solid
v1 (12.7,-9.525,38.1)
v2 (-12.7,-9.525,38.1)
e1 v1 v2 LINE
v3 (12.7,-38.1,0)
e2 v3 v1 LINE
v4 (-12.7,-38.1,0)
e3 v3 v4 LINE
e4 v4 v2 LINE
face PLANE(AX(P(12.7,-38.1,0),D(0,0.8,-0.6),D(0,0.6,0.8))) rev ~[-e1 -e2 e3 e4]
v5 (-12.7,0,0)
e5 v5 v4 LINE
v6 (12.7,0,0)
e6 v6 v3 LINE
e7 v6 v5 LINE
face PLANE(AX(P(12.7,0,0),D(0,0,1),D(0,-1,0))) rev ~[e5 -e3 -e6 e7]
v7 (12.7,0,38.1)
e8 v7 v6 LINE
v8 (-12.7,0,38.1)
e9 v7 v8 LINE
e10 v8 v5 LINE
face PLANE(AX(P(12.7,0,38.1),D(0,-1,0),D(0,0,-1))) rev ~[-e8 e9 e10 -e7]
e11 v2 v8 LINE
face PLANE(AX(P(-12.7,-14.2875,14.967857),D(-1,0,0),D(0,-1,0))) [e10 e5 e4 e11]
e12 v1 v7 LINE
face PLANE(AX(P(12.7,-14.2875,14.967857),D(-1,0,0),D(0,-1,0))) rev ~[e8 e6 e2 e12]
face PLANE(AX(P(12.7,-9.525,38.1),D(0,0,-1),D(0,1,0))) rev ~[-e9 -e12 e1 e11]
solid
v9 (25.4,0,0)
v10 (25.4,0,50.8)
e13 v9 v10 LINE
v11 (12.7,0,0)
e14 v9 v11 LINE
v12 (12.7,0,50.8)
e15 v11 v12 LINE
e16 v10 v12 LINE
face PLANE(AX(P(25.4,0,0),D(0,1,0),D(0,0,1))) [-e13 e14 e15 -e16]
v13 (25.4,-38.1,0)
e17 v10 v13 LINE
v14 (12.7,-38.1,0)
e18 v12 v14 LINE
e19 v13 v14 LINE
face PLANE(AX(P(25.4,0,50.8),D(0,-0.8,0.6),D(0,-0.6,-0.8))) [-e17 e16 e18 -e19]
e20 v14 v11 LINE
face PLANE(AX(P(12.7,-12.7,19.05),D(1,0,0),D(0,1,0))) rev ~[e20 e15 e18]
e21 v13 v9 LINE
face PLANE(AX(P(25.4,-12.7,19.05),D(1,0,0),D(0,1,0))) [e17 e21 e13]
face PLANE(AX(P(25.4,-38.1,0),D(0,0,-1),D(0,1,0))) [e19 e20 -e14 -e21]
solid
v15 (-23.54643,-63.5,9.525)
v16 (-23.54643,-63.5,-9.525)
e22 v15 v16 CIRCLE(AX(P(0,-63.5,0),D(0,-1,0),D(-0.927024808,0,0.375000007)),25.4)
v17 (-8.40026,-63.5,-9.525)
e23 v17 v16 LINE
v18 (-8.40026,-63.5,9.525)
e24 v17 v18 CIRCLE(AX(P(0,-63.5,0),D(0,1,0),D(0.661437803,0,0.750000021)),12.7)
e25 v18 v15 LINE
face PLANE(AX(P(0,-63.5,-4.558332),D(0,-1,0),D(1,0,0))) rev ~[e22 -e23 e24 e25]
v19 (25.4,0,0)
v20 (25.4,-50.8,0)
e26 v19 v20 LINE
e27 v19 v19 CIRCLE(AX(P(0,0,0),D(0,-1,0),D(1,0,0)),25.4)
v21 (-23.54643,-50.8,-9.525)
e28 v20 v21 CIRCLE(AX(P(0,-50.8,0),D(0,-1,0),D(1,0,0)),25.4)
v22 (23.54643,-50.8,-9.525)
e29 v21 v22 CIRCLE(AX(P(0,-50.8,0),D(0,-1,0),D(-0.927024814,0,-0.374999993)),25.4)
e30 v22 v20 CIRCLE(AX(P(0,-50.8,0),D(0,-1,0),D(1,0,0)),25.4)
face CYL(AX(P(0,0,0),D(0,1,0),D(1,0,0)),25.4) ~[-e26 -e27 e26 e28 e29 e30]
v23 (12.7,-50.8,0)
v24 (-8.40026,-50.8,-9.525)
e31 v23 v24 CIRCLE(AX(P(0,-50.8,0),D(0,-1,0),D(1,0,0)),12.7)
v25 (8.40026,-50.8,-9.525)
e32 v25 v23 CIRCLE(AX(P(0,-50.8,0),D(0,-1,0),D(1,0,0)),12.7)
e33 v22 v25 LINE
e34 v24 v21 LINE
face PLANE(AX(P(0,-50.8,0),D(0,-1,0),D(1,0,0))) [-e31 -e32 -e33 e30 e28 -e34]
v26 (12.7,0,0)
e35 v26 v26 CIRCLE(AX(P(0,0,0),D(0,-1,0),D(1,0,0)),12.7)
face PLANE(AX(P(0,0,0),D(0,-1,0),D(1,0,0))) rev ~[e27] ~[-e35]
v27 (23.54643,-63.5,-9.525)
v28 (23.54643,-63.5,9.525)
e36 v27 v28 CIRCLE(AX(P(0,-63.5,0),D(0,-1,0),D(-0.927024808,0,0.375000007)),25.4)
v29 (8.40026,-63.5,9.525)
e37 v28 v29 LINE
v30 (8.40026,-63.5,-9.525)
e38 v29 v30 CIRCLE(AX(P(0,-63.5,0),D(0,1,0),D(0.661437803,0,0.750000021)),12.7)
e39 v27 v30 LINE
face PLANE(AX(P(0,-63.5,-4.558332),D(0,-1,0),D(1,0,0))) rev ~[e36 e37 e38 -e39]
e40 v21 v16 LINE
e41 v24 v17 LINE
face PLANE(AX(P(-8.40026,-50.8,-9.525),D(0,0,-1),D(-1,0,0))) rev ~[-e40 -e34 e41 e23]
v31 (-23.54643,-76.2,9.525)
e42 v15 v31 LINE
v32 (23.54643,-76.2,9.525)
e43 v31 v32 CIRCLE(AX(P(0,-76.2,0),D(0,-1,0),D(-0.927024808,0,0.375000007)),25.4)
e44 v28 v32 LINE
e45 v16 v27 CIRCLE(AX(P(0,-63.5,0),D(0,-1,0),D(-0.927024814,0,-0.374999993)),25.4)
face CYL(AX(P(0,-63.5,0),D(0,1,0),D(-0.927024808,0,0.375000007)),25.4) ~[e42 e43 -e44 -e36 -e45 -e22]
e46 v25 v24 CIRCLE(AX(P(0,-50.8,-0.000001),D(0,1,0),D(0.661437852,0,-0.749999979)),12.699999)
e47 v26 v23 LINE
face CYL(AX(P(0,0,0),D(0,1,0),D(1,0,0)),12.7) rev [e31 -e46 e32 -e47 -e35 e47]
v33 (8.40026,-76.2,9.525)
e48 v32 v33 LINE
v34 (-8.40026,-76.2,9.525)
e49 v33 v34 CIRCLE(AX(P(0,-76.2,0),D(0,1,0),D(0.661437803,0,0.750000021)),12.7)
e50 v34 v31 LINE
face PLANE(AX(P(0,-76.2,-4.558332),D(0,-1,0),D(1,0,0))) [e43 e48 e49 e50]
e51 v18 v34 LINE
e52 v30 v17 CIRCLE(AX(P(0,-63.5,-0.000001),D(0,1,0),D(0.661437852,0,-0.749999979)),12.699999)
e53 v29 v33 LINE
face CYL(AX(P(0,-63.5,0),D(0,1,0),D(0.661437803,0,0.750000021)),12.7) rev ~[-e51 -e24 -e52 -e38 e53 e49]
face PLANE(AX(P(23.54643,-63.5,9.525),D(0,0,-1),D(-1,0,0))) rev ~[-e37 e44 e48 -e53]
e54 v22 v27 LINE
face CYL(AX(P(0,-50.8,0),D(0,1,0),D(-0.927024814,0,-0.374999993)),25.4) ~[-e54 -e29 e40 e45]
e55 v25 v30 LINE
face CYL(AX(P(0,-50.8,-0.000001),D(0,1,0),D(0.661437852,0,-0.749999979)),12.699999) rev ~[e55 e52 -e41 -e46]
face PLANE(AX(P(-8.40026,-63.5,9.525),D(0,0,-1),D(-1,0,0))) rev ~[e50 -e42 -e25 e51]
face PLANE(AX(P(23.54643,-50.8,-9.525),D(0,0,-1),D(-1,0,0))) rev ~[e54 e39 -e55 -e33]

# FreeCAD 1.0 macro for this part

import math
import FreeCAD as App
import Part
import Sketcher
from FreeCAD import Vector
Q = App.Units.Quantity

doc = App.newDocument("Part")
params = doc.addObject("Spreadsheet::Sheet", "Params")
for row, (alias, value) in enumerate([
    ("sketch1_diameter", "2 in"),
    ("sketch1_diameter2", "1 in"),
    ("pad1_length", "2 in"),
    ("sketch2_radius", "1 in"),
    ("sketch2_radius2", "0.5 in"),
    ("pad2_length", "0.5 in"),
    ("sketch3_radius", "1 in"),
    ("sketch3_radius2", "0.5 in"),
    ("pad3_length", "0.5 in"),
    ("sketch4_height", "2 in"),
    ("sketch4_width", "1.5 in"),
    ("pad4_length", "0.5 in"),
    ("sketch5_width", "1.5 in"),
    ("sketch5_width2", "0.375 in"),
    ("pad5_length", "1 in"),
], start=1):
    params.set(f"A{row}", alias)
    params.set(f"B{row}", "=" + value)
    params.setAlias(f"B{row}", alias)

body = doc.addObject("PartDesign::Body", "Body")

# Sketch on XZ plane
sketch1 = body.newObject("Sketcher::SketchObject", "Sketch")
sketch1.AttachmentSupport = (doc.getObject("XZ_Plane"), [""])
sketch1.MapMode = "FlatFace"
sketch1.addGeometry([
    Part.Circle(Vector(0, 0, 0), Vector(0, 0, 1), 25.4),
    Part.Circle(Vector(0, 0, 0), Vector(0, 0, 1), 12.7),
], False)
sketch1.addConstraint([
    Sketcher.Constraint("Coincident", 0, 3, -1, 1),
    Sketcher.Constraint("Coincident", 1, 3, -1, 1),
    Sketcher.Constraint("Diameter", 0, Q("2 in")),
    Sketcher.Constraint("Diameter", 1, Q("1 in")),
])
sketch1.setExpression("Constraints[2]", "Params.sketch1_diameter")
sketch1.setExpression("Constraints[3]", "Params.sketch1_diameter2")
pad1 = body.newObject("PartDesign::Pad", "Pad")
pad1.Profile = sketch1
pad1.setExpression("Length", "Params.pad1_length")

# Sketch on XZ plane
sketch2 = body.newObject("Sketcher::SketchObject", "Sketch001")
sketch2.AttachmentSupport = (doc.getObject("XZ_Plane"), [""])
sketch2.MapMode = "FlatFace"
sketch2.AttachmentOffset = App.Placement(Vector(0, 0, 2 * 25.4), App.Rotation())
sketch2.addGeometry([
    Part.ArcOfCircle(Part.Circle(Vector(0, -0.000001, 0), Vector(0, 0, 1), 12.699999), math.radians(-131.409624), math.radians(-48.590376)),
    Part.LineSegment(Vector(-8.40026, -9.525, 0), Vector(-23.54643, -9.525, 0)),
    Part.ArcOfCircle(Part.Circle(Vector(0, 0, 0), Vector(0, 0, 1), 25.4), math.radians(-157.975688), math.radians(-22.024312)),
    Part.LineSegment(Vector(23.54643, -9.525, 0), Vector(8.40026, -9.525, 0)),
], False)
sketch2.addConstraint([
    Sketcher.Constraint("Coincident", 0, 1, 1, 1),
    Sketcher.Constraint("Coincident", 1, 2, 2, 1),
    Sketcher.Constraint("Coincident", 2, 2, 3, 1),
    Sketcher.Constraint("Coincident", 3, 2, 0, 2),
    Sketcher.Constraint("Horizontal", 1),
    Sketcher.Constraint("Horizontal", 3),
    Sketcher.Constraint("Coincident", 0, 3, -1, 1),
    Sketcher.Constraint("Coincident", 2, 3, -1, 1),
    Sketcher.Constraint("Horizontal", 1, 2, 2, 2),
    Sketcher.Constraint("Radius", 2, Q("1 in")),
    Sketcher.Constraint("Radius", 0, Q("0.5 in")),
    Sketcher.Constraint("DistanceY", 0, 1, -1, 1, Q("0.375 in")),
])
sketch2.setExpression("Constraints[9]", "Params.sketch2_radius")
sketch2.setExpression("Constraints[10]", "Params.sketch2_radius2")
pad2 = body.newObject("PartDesign::Pad", "Pad001")
pad2.Profile = sketch2
pad2.setExpression("Length", "Params.pad2_length")

# Sketch on XZ plane
sketch3 = body.newObject("Sketcher::SketchObject", "Sketch002")
sketch3.AttachmentSupport = (doc.getObject("XZ_Plane"), [""])
sketch3.MapMode = "FlatFace"
sketch3.AttachmentOffset = App.Placement(Vector(0, 0, 2.5 * 25.4), App.Rotation())
sketch3.addGeometry([
    Part.ArcOfCircle(Part.Circle(Vector(0, 0, 0), Vector(0, 0, 1), 12.7), math.radians(131.40962), math.radians(408.59038)),
    Part.LineSegment(Vector(-8.40026, 9.525, 0), Vector(-23.54643, 9.525, 0)),
    Part.ArcOfCircle(Part.Circle(Vector(0, 0, 0), Vector(0, 0, 1), 25.4), math.radians(157.975687), math.radians(382.024313)),
    Part.LineSegment(Vector(23.54643, 9.525, 0), Vector(8.40026, 9.525, 0)),
], False)
sketch3.addConstraint([
    Sketcher.Constraint("Coincident", 0, 1, 1, 1),
    Sketcher.Constraint("Coincident", 1, 2, 2, 1),
    Sketcher.Constraint("Coincident", 2, 2, 3, 1),
    Sketcher.Constraint("Coincident", 3, 2, 0, 2),
    Sketcher.Constraint("Horizontal", 1),
    Sketcher.Constraint("Horizontal", 3),
    Sketcher.Constraint("Coincident", 0, 3, -1, 1),
    Sketcher.Constraint("Coincident", 2, 3, -1, 1),
    Sketcher.Constraint("Horizontal", 1, 2, 2, 2),
    Sketcher.Constraint("Radius", 2, Q("1 in")),
    Sketcher.Constraint("Radius", 0, Q("0.5 in")),
    Sketcher.Constraint("DistanceY", -1, 1, 0, 1, Q("0.375 in")),
])
sketch3.setExpression("Constraints[9]", "Params.sketch3_radius")
sketch3.setExpression("Constraints[10]", "Params.sketch3_radius2")
pad3 = body.newObject("PartDesign::Pad", "Pad002")
pad3.Profile = sketch3
pad3.setExpression("Length", "Params.pad3_length")
body2 = doc.addObject("PartDesign::Body", "Body001")

# Sketch on YZ plane
sketch4 = body2.newObject("Sketcher::SketchObject", "Sketch003")
sketch4.AttachmentSupport = (doc.getObject("YZ_Plane001"), [""])
sketch4.MapMode = "FlatFace"
sketch4.AttachmentOffset = App.Placement(Vector(0, 0, 1 * 25.4), App.Rotation())
sketch4.addGeometry([
    Part.LineSegment(Vector(-38.1, 0, 0), Vector(0, 0, 0)),
    Part.LineSegment(Vector(0, 0, 0), Vector(0, 50.8, 0)),
    Part.LineSegment(Vector(0, 50.8, 0), Vector(-38.1, 0, 0)),
], False)
sketch4.addConstraint([
    Sketcher.Constraint("Coincident", 0, 2, 1, 1),
    Sketcher.Constraint("Coincident", 1, 2, 2, 1),
    Sketcher.Constraint("Coincident", 2, 2, 0, 1),
    Sketcher.Constraint("Horizontal", 0),
    Sketcher.Constraint("Vertical", 1),
    Sketcher.Constraint("Coincident", 0, 2, -1, 1),
    Sketcher.Constraint("DistanceY", 1, 1, 1, 2, Q("2 in")),
    Sketcher.Constraint("DistanceX", 0, 1, 0, 2, Q("1.5 in")),
])
sketch4.setExpression("Constraints[6]", "Params.sketch4_height")
sketch4.setExpression("Constraints[7]", "Params.sketch4_width")
pad4 = body2.newObject("PartDesign::Pad", "Pad003")
pad4.Profile = sketch4
pad4.setExpression("Length", "Params.pad4_length")
pad4.Reversed = True
body3 = doc.addObject("PartDesign::Body", "Body002")

# Sketch on YZ plane
sketch5 = body3.newObject("Sketcher::SketchObject", "Sketch004")
sketch5.AttachmentSupport = (doc.getObject("YZ_Plane002"), [""])
sketch5.MapMode = "FlatFace"
sketch5.AttachmentOffset = App.Placement(Vector(0, 0, 0.5 * 25.4), App.Rotation())
sketch5.addGeometry([
    Part.LineSegment(Vector(0, 38.1, 0), Vector(0, 0, 0)),
    Part.LineSegment(Vector(0, 0, 0), Vector(-38.1, 0, 0)),
    Part.LineSegment(Vector(-38.1, 0, 0), Vector(-9.525, 38.1, 0)),
    Part.LineSegment(Vector(-9.525, 38.1, 0), Vector(0, 38.1, 0)),
], False)
sketch5.addConstraint([
    Sketcher.Constraint("Coincident", 0, 2, 1, 1),
    Sketcher.Constraint("Coincident", 1, 2, 2, 1),
    Sketcher.Constraint("Coincident", 2, 2, 3, 1),
    Sketcher.Constraint("Coincident", 3, 2, 0, 1),
    Sketcher.Constraint("Vertical", 0),
    Sketcher.Constraint("Horizontal", 1),
    Sketcher.Constraint("Horizontal", 3),
    Sketcher.Constraint("Coincident", 0, 2, -1, 1),
    Sketcher.Constraint("Equal", 1, 0),
    Sketcher.Constraint("DistanceX", 1, 2, 1, 1, Q("1.5 in")),
    Sketcher.Constraint("DistanceX", 3, 1, 3, 2, Q("0.375 in")),
])
sketch5.setExpression("Constraints[9]", "Params.sketch5_width")
sketch5.setExpression("Constraints[10]", "Params.sketch5_width2")
pad5 = body3.newObject("PartDesign::Pad", "Pad004")
pad5.Profile = sketch5
pad5.setExpression("Length", "Params.pad5_length")
pad5.Reversed = True

doc.recompute()
